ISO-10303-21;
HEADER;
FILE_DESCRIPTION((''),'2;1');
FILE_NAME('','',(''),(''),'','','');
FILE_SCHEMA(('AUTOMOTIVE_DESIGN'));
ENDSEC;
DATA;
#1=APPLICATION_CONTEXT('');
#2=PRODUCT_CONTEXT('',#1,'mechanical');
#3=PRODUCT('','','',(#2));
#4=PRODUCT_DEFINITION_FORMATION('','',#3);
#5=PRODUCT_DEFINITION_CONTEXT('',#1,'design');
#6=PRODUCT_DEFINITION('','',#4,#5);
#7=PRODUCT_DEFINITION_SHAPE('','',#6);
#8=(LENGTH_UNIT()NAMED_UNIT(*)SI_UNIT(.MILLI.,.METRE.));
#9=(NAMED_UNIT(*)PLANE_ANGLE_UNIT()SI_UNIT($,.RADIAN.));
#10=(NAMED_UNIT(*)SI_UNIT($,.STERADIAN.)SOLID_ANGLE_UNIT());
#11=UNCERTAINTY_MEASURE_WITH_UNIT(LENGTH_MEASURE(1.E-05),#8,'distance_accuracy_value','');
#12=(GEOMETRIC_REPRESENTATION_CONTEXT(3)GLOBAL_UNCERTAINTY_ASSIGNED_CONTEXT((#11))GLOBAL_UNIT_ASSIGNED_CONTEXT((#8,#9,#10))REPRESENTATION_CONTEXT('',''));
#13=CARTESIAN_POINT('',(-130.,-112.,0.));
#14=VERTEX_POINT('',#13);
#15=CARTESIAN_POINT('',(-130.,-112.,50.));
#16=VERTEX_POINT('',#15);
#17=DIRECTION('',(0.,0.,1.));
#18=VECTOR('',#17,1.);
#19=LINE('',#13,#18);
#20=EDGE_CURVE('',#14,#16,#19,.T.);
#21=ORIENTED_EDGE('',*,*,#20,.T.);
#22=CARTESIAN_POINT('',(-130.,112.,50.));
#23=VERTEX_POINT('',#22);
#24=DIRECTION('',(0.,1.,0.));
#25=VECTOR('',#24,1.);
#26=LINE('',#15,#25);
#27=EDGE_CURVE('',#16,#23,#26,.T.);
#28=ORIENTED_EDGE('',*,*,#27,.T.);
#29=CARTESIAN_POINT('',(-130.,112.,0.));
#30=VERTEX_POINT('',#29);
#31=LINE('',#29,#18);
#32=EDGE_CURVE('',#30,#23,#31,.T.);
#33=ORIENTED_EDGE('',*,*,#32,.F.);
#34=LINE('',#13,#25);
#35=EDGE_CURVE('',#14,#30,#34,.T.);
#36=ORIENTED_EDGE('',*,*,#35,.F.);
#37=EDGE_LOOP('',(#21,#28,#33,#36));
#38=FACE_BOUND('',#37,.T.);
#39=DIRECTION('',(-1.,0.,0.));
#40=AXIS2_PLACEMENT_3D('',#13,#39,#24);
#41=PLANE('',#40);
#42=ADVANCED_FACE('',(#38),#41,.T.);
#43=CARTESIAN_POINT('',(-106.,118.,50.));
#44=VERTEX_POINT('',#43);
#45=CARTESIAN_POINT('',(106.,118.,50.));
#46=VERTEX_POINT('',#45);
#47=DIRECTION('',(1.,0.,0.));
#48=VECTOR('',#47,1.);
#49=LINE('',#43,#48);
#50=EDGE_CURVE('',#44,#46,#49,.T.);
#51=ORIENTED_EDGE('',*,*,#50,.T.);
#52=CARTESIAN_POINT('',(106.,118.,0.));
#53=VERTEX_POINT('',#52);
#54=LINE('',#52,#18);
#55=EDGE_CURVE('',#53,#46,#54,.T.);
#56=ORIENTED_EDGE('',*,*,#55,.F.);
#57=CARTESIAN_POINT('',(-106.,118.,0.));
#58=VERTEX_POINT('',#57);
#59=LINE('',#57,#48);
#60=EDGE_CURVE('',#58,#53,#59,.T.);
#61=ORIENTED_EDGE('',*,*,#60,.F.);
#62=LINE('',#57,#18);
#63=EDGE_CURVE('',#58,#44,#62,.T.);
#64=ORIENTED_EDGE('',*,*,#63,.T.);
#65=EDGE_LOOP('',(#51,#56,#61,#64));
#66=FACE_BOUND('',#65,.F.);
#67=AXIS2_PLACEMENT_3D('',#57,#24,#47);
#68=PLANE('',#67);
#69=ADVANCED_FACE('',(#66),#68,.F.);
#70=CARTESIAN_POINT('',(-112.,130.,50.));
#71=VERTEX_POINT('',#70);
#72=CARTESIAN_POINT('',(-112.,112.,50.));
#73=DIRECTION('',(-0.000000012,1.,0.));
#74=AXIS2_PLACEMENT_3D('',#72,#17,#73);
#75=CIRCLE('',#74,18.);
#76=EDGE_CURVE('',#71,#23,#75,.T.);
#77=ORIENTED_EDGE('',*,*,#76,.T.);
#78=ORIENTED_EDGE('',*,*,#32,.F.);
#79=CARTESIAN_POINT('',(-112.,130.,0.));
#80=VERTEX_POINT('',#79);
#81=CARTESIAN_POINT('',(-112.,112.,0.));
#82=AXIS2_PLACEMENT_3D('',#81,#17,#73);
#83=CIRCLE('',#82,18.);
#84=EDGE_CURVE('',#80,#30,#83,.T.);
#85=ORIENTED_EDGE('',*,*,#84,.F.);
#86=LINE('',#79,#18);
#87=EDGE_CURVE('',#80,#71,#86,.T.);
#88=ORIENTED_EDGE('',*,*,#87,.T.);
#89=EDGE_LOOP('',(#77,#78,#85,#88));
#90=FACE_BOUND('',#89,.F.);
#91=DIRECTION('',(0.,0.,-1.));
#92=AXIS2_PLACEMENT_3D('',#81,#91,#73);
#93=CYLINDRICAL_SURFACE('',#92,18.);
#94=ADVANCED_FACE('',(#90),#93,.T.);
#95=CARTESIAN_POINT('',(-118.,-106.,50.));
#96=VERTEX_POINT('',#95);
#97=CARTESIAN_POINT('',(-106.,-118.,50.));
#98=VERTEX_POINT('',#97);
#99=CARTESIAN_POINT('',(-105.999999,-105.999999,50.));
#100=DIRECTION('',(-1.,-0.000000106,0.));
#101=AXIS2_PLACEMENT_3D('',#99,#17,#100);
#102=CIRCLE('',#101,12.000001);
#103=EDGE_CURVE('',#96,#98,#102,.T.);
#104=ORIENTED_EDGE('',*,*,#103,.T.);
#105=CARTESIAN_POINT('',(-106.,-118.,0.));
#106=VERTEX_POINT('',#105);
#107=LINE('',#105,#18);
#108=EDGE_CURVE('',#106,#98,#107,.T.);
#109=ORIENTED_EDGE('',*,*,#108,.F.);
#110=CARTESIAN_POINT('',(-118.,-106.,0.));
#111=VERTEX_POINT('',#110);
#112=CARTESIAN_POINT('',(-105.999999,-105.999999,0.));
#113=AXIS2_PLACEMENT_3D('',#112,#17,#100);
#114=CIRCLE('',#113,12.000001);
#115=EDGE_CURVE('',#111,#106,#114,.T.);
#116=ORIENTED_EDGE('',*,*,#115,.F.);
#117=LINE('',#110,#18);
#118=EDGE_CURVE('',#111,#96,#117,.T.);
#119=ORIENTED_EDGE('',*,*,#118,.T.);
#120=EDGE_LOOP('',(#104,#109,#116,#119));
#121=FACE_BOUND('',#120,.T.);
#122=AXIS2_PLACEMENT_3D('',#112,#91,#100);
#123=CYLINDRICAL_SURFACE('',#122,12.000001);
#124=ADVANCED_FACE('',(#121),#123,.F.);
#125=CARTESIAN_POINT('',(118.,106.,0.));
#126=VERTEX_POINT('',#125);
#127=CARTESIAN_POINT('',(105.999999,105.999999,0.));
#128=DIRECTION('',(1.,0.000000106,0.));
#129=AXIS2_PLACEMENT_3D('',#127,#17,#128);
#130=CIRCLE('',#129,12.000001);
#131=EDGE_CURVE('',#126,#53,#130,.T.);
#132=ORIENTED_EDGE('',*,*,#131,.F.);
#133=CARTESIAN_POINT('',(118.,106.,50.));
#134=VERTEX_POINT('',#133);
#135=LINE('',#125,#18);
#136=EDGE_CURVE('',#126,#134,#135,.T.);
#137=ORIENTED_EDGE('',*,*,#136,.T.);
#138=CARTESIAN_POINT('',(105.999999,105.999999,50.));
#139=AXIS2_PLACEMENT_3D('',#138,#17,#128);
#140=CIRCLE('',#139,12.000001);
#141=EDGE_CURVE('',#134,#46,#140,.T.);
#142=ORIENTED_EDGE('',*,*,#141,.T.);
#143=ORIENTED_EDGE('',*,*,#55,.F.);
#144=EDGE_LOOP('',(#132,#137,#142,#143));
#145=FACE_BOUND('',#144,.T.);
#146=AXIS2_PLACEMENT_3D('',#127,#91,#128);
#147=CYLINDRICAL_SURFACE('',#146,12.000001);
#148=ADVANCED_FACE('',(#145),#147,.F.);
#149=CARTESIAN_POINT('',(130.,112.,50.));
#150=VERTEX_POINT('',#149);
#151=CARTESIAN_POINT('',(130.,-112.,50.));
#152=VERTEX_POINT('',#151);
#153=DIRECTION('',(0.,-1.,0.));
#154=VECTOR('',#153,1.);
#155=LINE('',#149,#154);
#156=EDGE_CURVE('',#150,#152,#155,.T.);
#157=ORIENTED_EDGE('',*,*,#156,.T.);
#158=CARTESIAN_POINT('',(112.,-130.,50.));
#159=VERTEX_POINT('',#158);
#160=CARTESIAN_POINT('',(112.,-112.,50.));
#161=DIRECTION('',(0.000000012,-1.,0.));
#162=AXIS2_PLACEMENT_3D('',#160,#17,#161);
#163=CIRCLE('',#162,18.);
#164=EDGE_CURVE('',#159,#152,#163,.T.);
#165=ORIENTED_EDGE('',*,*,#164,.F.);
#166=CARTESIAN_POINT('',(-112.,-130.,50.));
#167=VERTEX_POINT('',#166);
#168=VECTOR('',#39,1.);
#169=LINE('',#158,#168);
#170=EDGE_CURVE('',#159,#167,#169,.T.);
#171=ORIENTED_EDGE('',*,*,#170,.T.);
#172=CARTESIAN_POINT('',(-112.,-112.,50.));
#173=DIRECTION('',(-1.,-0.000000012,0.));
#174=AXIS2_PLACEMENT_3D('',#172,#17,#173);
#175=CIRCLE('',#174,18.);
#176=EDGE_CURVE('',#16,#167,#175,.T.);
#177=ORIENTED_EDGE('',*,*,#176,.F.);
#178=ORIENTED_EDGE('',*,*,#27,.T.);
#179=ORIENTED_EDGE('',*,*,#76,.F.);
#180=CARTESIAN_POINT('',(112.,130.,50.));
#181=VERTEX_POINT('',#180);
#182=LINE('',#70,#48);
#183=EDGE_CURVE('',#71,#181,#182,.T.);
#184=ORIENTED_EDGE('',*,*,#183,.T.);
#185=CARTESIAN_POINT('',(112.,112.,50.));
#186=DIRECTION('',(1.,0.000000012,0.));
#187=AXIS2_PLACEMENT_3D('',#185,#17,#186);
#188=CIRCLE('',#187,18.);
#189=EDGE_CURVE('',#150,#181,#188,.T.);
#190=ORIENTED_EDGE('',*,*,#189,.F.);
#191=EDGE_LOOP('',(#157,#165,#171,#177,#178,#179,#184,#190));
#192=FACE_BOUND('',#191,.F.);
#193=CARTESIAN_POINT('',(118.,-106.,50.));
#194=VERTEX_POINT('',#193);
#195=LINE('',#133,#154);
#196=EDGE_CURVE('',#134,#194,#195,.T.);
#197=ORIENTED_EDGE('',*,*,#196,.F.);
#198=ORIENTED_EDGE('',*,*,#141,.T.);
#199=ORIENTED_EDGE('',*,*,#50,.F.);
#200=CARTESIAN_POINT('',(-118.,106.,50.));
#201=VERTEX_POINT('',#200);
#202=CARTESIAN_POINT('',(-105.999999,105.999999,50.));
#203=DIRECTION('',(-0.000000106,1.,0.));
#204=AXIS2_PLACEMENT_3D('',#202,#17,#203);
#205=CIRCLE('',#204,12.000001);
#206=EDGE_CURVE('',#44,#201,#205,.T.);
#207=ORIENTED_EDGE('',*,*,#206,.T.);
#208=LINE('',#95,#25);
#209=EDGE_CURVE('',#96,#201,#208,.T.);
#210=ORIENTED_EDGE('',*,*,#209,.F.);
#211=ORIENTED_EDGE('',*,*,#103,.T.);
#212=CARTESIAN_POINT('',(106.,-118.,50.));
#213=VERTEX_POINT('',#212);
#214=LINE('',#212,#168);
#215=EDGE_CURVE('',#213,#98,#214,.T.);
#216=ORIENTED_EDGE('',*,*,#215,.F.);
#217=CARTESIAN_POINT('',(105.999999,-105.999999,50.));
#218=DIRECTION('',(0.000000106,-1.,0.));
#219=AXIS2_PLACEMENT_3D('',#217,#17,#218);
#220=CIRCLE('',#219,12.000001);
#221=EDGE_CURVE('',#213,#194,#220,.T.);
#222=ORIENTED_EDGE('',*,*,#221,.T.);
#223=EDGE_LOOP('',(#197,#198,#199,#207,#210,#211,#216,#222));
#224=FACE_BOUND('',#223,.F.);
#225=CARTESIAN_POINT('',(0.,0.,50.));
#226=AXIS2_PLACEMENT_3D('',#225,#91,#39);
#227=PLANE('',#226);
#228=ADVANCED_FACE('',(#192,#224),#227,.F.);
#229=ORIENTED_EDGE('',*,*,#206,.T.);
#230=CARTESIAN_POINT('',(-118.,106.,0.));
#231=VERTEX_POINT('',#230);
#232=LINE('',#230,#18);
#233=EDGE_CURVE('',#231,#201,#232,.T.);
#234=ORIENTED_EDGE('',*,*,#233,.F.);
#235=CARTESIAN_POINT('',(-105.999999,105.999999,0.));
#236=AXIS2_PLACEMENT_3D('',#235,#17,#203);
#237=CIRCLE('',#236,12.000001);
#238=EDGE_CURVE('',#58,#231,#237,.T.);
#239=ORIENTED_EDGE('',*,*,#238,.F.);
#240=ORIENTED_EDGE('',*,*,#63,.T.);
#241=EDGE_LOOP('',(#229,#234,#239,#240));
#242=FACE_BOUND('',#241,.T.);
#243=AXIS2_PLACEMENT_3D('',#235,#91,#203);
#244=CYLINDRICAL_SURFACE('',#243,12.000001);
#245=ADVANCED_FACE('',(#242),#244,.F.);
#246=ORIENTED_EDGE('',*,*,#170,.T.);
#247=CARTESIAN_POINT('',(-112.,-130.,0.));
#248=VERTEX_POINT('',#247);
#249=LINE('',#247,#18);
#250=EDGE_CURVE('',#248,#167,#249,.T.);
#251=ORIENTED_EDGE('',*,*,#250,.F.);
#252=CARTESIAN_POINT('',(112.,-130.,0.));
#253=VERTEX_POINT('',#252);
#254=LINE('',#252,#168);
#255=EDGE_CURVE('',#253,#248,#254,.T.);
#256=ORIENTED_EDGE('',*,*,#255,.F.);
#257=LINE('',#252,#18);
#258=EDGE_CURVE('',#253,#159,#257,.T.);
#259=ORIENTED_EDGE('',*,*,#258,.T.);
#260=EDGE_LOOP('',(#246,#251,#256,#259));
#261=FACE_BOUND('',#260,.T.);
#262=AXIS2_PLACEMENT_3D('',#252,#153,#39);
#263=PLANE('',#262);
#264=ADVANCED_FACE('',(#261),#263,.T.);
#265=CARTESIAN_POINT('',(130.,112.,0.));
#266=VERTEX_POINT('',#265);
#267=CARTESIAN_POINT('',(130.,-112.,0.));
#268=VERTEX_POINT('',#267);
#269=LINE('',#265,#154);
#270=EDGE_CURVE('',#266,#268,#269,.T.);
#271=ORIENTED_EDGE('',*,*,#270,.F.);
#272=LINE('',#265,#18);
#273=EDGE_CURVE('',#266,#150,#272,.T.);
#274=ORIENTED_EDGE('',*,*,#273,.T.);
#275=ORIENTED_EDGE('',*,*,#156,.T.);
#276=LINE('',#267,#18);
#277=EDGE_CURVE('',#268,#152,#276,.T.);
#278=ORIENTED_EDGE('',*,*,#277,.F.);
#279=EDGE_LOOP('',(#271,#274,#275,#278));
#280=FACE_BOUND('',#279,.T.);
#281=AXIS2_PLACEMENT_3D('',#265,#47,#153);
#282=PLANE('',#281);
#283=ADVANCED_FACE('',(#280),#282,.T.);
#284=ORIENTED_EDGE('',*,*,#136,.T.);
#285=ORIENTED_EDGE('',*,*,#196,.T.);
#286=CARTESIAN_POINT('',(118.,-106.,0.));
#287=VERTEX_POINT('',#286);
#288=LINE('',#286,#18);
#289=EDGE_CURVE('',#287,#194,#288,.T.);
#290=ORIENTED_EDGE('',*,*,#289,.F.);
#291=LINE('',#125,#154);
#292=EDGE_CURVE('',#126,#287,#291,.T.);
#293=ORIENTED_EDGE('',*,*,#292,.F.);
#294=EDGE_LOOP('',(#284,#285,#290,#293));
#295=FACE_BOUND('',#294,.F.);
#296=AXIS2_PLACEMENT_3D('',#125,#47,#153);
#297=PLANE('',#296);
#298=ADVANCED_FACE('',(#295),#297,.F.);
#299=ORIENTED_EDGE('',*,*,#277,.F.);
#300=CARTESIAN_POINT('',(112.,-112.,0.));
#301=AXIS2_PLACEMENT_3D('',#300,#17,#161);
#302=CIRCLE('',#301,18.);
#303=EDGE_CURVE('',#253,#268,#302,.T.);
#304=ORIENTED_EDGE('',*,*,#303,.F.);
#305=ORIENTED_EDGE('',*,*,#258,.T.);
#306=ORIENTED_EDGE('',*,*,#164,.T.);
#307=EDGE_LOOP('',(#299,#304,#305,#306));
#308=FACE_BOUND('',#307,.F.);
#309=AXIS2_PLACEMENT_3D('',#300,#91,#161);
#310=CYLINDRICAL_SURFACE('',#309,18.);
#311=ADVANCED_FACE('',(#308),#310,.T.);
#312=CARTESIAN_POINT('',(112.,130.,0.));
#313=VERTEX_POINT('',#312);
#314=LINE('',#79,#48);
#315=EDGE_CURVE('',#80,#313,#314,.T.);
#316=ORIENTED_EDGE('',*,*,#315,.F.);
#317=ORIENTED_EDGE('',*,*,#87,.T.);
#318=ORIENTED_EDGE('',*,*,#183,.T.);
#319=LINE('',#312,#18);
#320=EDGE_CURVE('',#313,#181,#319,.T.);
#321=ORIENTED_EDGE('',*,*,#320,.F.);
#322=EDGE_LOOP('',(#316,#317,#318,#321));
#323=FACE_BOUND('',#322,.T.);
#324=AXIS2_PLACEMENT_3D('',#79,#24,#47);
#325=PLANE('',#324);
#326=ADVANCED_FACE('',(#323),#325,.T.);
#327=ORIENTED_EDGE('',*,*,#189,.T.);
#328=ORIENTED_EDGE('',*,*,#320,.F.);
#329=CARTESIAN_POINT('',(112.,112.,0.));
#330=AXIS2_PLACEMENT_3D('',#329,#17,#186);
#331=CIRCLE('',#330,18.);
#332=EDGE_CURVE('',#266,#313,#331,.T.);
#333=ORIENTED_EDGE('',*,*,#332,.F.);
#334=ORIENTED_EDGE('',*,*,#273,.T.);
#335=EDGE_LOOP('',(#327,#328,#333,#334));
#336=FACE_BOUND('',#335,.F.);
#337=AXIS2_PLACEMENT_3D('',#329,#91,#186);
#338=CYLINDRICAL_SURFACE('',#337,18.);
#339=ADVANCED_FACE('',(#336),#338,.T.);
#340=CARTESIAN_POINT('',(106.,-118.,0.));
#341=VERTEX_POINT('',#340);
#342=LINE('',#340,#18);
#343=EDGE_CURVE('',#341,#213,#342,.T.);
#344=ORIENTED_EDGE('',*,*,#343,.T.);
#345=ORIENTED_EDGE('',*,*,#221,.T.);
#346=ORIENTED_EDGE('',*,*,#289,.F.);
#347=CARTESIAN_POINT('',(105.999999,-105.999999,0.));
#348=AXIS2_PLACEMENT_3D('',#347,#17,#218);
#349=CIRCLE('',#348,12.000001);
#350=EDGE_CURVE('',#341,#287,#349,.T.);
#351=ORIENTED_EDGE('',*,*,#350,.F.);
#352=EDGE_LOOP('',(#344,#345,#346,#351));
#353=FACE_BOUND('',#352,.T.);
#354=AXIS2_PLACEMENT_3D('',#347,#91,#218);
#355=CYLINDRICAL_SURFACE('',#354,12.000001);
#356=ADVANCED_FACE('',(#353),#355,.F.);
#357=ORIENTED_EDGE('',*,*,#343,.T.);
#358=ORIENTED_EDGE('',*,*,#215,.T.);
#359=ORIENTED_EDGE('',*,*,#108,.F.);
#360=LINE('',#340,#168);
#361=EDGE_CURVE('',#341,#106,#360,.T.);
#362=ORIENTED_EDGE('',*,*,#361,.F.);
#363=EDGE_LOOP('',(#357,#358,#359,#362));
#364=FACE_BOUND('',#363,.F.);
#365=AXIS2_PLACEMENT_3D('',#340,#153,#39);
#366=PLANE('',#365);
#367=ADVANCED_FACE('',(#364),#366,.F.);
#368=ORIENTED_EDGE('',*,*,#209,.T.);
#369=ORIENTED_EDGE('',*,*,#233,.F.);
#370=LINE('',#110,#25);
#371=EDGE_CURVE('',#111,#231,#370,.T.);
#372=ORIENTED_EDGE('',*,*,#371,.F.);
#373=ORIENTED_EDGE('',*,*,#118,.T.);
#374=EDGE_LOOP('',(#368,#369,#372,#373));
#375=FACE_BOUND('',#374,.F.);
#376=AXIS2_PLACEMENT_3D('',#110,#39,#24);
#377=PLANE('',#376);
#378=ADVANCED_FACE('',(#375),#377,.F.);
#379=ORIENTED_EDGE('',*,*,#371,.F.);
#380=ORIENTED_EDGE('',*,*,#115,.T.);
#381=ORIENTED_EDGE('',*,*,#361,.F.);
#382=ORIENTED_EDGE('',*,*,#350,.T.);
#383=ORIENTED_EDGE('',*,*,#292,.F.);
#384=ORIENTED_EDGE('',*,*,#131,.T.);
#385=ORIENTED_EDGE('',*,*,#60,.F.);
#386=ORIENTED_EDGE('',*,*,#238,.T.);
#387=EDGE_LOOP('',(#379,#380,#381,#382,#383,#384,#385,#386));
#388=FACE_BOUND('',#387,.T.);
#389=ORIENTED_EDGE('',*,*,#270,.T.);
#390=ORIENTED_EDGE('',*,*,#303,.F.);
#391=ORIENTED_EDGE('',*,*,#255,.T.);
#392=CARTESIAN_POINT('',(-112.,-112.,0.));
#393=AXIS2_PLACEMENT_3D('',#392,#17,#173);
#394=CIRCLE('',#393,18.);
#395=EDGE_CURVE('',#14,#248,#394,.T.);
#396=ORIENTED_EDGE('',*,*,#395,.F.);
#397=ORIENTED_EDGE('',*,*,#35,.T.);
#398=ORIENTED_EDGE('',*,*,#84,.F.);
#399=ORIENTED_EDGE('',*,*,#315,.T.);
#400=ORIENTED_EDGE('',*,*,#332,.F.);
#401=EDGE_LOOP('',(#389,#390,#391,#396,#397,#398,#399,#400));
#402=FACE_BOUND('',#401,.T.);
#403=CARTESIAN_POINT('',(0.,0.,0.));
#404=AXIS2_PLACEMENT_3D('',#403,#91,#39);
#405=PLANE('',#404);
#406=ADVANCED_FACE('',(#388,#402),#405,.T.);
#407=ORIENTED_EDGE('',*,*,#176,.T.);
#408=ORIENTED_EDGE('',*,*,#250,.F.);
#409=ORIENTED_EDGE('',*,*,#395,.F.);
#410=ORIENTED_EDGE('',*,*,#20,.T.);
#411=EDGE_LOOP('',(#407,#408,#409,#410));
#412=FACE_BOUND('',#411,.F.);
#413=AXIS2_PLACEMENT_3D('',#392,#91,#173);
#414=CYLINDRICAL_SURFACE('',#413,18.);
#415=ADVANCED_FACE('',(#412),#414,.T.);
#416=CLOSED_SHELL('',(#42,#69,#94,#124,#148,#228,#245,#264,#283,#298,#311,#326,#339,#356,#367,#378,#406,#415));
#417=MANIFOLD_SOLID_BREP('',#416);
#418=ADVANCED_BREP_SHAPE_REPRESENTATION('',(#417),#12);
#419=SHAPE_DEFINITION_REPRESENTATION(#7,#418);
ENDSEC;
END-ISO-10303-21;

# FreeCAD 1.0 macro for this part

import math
import FreeCAD as App
import Part
import Sketcher
Q = App.Units.Quantity

doc = App.newDocument("Part")
params = doc.addObject("Spreadsheet::Sheet", "Params")
for row, (alias, value) in enumerate([
    ("sketch1_radius", "18 mm"),
    ("sketch1_radius2", "12.000001 mm"),
    ("sketch1_width", "224 mm"),
    ("sketch1_width2", "212 mm"),
    ("pad1_length", "50 mm"),
], start=1):
    params.set(f"A{row}", alias)
    params.set(f"B{row}", "=" + value)
    params.setAlias(f"B{row}", alias)

body = doc.addObject("PartDesign::Body", "Body")

# Sketch on XY plane
sketch1 = doc.addObject("Sketcher::SketchObject", "Sketch")
body.addObject(sketch1)
sketch1.AttachmentSupport = (doc.XY_Plane, [""])
sketch1.MapMode = "FlatFace"
sketch1.addGeometry(Part.LineSegment(App.Vector(112, 130, 0), App.Vector(-112, 130, 0)), False)
sketch1.addGeometry(Part.ArcOfCircle(Part.Circle(App.Vector(-112, 112, 0), App.Vector(0, 0, 1), 18), math.radians(90), math.radians(180)), False)
sketch1.addGeometry(Part.LineSegment(App.Vector(-130, 112, 0), App.Vector(-130, -112, 0)), False)
sketch1.addGeometry(Part.ArcOfCircle(Part.Circle(App.Vector(-112, -112, 0), App.Vector(0, 0, 1), 18), math.radians(-180), math.radians(-90)), False)
sketch1.addGeometry(Part.LineSegment(App.Vector(-112, -130, 0), App.Vector(112, -130, 0)), False)
sketch1.addGeometry(Part.ArcOfCircle(Part.Circle(App.Vector(112, -112, 0), App.Vector(0, 0, 1), 18), math.radians(-90), math.radians(0)), False)
sketch1.addGeometry(Part.LineSegment(App.Vector(130, -112, 0), App.Vector(130, 112, 0)), False)
sketch1.addGeometry(Part.ArcOfCircle(Part.Circle(App.Vector(112, 112, 0), App.Vector(0, 0, 1), 18), math.radians(0), math.radians(90)), False)
sketch1.addGeometry(Part.LineSegment(App.Vector(-106, 118, 0), App.Vector(106, 118, 0)), False)
sketch1.addGeometry(Part.ArcOfCircle(Part.Circle(App.Vector(106, 106, 0), App.Vector(0, 0, 1), 12), math.radians(0), math.radians(90)), False)
sketch1.addGeometry(Part.LineSegment(App.Vector(118, 106, 0), App.Vector(118, -106, 0)), False)
sketch1.addGeometry(Part.ArcOfCircle(Part.Circle(App.Vector(106, -106, 0), App.Vector(0, 0, 1), 12), math.radians(-90), math.radians(0)), False)
sketch1.addGeometry(Part.LineSegment(App.Vector(106, -118, 0), App.Vector(-106, -118, 0)), False)
sketch1.addGeometry(Part.ArcOfCircle(Part.Circle(App.Vector(-106, -106, 0), App.Vector(0, 0, 1), 12), math.radians(-180), math.radians(-90)), False)
sketch1.addGeometry(Part.LineSegment(App.Vector(-118, -106, 0), App.Vector(-118, 106, 0)), False)
sketch1.addGeometry(Part.ArcOfCircle(Part.Circle(App.Vector(-106, 106, 0), App.Vector(0, 0, 1), 12), math.radians(90), math.radians(180)), False)
sketch1.addConstraint(Sketcher.Constraint("Tangent", 0, 2, 1, 1))
sketch1.addConstraint(Sketcher.Constraint("Tangent", 1, 2, 2, 1))
sketch1.addConstraint(Sketcher.Constraint("Tangent", 2, 2, 3, 1))
sketch1.addConstraint(Sketcher.Constraint("Tangent", 3, 2, 4, 1))
sketch1.addConstraint(Sketcher.Constraint("Tangent", 4, 2, 5, 1))
sketch1.addConstraint(Sketcher.Constraint("Tangent", 5, 2, 6, 1))
sketch1.addConstraint(Sketcher.Constraint("Tangent", 6, 2, 7, 1))
sketch1.addConstraint(Sketcher.Constraint("Tangent", 7, 2, 0, 1))
sketch1.addConstraint(Sketcher.Constraint("Tangent", 8, 2, 9, 2))
sketch1.addConstraint(Sketcher.Constraint("Tangent", 9, 1, 10, 1))
sketch1.addConstraint(Sketcher.Constraint("Tangent", 10, 2, 11, 2))
sketch1.addConstraint(Sketcher.Constraint("Tangent", 11, 1, 12, 1))
sketch1.addConstraint(Sketcher.Constraint("Tangent", 12, 2, 13, 2))
sketch1.addConstraint(Sketcher.Constraint("Tangent", 13, 1, 14, 1))
sketch1.addConstraint(Sketcher.Constraint("Tangent", 14, 2, 15, 2))
sketch1.addConstraint(Sketcher.Constraint("Tangent", 15, 1, 8, 1))
sketch1.addConstraint(Sketcher.Constraint("Horizontal", 0))
sketch1.addConstraint(Sketcher.Constraint("Vertical", 2))
sketch1.addConstraint(Sketcher.Constraint("Horizontal", 4))
sketch1.addConstraint(Sketcher.Constraint("Vertical", 6))
sketch1.addConstraint(Sketcher.Constraint("Horizontal", 8))
sketch1.addConstraint(Sketcher.Constraint("Vertical", 10))
sketch1.addConstraint(Sketcher.Constraint("Horizontal", 12))
sketch1.addConstraint(Sketcher.Constraint("Vertical", 14))
sketch1.addConstraint(Sketcher.Constraint("Equal", 1, 3))
sketch1.addConstraint(Sketcher.Constraint("Equal", 3, 5))
sketch1.addConstraint(Sketcher.Constraint("Equal", 5, 7))
sketch1.addConstraint(Sketcher.Constraint("Equal", 9, 11))
sketch1.addConstraint(Sketcher.Constraint("Equal", 11, 13))
sketch1.addConstraint(Sketcher.Constraint("Equal", 13, 15))
sketch1.addConstraint(Sketcher.Constraint("Symmetric", 1, 3, 5, 3, -1, 1))
sketch1.addConstraint(Sketcher.Constraint("Symmetric", 9, 3, 13, 3, -1, 1))
sketch1.addConstraint(Sketcher.Constraint("Equal", 4, 2))
sketch1.addConstraint(Sketcher.Constraint("Equal", 12, 10))
sketch1.addConstraint(Sketcher.Constraint("Radius", 1, Q("18 mm")))
sketch1.addConstraint(Sketcher.Constraint("Radius", 9, Q("12.000001 mm")))
sketch1.addConstraint(Sketcher.Constraint("DistanceX", 0, 2, 0, 1, Q("224 mm")))
sketch1.addConstraint(Sketcher.Constraint("DistanceX", 8, 1, 8, 2, Q("212 mm")))
sketch1.setExpression("Constraints[34]", "Params.sketch1_radius")
sketch1.setExpression("Constraints[35]", "Params.sketch1_radius2")
sketch1.setExpression("Constraints[36]", "Params.sketch1_width")
sketch1.setExpression("Constraints[37]", "Params.sketch1_width2")
pad1 = doc.addObject("PartDesign::Pad", "Pad")
body.addObject(pad1)
pad1.Profile = sketch1
pad1.setExpression("Length", "Params.pad1_length")

doc.recompute()
